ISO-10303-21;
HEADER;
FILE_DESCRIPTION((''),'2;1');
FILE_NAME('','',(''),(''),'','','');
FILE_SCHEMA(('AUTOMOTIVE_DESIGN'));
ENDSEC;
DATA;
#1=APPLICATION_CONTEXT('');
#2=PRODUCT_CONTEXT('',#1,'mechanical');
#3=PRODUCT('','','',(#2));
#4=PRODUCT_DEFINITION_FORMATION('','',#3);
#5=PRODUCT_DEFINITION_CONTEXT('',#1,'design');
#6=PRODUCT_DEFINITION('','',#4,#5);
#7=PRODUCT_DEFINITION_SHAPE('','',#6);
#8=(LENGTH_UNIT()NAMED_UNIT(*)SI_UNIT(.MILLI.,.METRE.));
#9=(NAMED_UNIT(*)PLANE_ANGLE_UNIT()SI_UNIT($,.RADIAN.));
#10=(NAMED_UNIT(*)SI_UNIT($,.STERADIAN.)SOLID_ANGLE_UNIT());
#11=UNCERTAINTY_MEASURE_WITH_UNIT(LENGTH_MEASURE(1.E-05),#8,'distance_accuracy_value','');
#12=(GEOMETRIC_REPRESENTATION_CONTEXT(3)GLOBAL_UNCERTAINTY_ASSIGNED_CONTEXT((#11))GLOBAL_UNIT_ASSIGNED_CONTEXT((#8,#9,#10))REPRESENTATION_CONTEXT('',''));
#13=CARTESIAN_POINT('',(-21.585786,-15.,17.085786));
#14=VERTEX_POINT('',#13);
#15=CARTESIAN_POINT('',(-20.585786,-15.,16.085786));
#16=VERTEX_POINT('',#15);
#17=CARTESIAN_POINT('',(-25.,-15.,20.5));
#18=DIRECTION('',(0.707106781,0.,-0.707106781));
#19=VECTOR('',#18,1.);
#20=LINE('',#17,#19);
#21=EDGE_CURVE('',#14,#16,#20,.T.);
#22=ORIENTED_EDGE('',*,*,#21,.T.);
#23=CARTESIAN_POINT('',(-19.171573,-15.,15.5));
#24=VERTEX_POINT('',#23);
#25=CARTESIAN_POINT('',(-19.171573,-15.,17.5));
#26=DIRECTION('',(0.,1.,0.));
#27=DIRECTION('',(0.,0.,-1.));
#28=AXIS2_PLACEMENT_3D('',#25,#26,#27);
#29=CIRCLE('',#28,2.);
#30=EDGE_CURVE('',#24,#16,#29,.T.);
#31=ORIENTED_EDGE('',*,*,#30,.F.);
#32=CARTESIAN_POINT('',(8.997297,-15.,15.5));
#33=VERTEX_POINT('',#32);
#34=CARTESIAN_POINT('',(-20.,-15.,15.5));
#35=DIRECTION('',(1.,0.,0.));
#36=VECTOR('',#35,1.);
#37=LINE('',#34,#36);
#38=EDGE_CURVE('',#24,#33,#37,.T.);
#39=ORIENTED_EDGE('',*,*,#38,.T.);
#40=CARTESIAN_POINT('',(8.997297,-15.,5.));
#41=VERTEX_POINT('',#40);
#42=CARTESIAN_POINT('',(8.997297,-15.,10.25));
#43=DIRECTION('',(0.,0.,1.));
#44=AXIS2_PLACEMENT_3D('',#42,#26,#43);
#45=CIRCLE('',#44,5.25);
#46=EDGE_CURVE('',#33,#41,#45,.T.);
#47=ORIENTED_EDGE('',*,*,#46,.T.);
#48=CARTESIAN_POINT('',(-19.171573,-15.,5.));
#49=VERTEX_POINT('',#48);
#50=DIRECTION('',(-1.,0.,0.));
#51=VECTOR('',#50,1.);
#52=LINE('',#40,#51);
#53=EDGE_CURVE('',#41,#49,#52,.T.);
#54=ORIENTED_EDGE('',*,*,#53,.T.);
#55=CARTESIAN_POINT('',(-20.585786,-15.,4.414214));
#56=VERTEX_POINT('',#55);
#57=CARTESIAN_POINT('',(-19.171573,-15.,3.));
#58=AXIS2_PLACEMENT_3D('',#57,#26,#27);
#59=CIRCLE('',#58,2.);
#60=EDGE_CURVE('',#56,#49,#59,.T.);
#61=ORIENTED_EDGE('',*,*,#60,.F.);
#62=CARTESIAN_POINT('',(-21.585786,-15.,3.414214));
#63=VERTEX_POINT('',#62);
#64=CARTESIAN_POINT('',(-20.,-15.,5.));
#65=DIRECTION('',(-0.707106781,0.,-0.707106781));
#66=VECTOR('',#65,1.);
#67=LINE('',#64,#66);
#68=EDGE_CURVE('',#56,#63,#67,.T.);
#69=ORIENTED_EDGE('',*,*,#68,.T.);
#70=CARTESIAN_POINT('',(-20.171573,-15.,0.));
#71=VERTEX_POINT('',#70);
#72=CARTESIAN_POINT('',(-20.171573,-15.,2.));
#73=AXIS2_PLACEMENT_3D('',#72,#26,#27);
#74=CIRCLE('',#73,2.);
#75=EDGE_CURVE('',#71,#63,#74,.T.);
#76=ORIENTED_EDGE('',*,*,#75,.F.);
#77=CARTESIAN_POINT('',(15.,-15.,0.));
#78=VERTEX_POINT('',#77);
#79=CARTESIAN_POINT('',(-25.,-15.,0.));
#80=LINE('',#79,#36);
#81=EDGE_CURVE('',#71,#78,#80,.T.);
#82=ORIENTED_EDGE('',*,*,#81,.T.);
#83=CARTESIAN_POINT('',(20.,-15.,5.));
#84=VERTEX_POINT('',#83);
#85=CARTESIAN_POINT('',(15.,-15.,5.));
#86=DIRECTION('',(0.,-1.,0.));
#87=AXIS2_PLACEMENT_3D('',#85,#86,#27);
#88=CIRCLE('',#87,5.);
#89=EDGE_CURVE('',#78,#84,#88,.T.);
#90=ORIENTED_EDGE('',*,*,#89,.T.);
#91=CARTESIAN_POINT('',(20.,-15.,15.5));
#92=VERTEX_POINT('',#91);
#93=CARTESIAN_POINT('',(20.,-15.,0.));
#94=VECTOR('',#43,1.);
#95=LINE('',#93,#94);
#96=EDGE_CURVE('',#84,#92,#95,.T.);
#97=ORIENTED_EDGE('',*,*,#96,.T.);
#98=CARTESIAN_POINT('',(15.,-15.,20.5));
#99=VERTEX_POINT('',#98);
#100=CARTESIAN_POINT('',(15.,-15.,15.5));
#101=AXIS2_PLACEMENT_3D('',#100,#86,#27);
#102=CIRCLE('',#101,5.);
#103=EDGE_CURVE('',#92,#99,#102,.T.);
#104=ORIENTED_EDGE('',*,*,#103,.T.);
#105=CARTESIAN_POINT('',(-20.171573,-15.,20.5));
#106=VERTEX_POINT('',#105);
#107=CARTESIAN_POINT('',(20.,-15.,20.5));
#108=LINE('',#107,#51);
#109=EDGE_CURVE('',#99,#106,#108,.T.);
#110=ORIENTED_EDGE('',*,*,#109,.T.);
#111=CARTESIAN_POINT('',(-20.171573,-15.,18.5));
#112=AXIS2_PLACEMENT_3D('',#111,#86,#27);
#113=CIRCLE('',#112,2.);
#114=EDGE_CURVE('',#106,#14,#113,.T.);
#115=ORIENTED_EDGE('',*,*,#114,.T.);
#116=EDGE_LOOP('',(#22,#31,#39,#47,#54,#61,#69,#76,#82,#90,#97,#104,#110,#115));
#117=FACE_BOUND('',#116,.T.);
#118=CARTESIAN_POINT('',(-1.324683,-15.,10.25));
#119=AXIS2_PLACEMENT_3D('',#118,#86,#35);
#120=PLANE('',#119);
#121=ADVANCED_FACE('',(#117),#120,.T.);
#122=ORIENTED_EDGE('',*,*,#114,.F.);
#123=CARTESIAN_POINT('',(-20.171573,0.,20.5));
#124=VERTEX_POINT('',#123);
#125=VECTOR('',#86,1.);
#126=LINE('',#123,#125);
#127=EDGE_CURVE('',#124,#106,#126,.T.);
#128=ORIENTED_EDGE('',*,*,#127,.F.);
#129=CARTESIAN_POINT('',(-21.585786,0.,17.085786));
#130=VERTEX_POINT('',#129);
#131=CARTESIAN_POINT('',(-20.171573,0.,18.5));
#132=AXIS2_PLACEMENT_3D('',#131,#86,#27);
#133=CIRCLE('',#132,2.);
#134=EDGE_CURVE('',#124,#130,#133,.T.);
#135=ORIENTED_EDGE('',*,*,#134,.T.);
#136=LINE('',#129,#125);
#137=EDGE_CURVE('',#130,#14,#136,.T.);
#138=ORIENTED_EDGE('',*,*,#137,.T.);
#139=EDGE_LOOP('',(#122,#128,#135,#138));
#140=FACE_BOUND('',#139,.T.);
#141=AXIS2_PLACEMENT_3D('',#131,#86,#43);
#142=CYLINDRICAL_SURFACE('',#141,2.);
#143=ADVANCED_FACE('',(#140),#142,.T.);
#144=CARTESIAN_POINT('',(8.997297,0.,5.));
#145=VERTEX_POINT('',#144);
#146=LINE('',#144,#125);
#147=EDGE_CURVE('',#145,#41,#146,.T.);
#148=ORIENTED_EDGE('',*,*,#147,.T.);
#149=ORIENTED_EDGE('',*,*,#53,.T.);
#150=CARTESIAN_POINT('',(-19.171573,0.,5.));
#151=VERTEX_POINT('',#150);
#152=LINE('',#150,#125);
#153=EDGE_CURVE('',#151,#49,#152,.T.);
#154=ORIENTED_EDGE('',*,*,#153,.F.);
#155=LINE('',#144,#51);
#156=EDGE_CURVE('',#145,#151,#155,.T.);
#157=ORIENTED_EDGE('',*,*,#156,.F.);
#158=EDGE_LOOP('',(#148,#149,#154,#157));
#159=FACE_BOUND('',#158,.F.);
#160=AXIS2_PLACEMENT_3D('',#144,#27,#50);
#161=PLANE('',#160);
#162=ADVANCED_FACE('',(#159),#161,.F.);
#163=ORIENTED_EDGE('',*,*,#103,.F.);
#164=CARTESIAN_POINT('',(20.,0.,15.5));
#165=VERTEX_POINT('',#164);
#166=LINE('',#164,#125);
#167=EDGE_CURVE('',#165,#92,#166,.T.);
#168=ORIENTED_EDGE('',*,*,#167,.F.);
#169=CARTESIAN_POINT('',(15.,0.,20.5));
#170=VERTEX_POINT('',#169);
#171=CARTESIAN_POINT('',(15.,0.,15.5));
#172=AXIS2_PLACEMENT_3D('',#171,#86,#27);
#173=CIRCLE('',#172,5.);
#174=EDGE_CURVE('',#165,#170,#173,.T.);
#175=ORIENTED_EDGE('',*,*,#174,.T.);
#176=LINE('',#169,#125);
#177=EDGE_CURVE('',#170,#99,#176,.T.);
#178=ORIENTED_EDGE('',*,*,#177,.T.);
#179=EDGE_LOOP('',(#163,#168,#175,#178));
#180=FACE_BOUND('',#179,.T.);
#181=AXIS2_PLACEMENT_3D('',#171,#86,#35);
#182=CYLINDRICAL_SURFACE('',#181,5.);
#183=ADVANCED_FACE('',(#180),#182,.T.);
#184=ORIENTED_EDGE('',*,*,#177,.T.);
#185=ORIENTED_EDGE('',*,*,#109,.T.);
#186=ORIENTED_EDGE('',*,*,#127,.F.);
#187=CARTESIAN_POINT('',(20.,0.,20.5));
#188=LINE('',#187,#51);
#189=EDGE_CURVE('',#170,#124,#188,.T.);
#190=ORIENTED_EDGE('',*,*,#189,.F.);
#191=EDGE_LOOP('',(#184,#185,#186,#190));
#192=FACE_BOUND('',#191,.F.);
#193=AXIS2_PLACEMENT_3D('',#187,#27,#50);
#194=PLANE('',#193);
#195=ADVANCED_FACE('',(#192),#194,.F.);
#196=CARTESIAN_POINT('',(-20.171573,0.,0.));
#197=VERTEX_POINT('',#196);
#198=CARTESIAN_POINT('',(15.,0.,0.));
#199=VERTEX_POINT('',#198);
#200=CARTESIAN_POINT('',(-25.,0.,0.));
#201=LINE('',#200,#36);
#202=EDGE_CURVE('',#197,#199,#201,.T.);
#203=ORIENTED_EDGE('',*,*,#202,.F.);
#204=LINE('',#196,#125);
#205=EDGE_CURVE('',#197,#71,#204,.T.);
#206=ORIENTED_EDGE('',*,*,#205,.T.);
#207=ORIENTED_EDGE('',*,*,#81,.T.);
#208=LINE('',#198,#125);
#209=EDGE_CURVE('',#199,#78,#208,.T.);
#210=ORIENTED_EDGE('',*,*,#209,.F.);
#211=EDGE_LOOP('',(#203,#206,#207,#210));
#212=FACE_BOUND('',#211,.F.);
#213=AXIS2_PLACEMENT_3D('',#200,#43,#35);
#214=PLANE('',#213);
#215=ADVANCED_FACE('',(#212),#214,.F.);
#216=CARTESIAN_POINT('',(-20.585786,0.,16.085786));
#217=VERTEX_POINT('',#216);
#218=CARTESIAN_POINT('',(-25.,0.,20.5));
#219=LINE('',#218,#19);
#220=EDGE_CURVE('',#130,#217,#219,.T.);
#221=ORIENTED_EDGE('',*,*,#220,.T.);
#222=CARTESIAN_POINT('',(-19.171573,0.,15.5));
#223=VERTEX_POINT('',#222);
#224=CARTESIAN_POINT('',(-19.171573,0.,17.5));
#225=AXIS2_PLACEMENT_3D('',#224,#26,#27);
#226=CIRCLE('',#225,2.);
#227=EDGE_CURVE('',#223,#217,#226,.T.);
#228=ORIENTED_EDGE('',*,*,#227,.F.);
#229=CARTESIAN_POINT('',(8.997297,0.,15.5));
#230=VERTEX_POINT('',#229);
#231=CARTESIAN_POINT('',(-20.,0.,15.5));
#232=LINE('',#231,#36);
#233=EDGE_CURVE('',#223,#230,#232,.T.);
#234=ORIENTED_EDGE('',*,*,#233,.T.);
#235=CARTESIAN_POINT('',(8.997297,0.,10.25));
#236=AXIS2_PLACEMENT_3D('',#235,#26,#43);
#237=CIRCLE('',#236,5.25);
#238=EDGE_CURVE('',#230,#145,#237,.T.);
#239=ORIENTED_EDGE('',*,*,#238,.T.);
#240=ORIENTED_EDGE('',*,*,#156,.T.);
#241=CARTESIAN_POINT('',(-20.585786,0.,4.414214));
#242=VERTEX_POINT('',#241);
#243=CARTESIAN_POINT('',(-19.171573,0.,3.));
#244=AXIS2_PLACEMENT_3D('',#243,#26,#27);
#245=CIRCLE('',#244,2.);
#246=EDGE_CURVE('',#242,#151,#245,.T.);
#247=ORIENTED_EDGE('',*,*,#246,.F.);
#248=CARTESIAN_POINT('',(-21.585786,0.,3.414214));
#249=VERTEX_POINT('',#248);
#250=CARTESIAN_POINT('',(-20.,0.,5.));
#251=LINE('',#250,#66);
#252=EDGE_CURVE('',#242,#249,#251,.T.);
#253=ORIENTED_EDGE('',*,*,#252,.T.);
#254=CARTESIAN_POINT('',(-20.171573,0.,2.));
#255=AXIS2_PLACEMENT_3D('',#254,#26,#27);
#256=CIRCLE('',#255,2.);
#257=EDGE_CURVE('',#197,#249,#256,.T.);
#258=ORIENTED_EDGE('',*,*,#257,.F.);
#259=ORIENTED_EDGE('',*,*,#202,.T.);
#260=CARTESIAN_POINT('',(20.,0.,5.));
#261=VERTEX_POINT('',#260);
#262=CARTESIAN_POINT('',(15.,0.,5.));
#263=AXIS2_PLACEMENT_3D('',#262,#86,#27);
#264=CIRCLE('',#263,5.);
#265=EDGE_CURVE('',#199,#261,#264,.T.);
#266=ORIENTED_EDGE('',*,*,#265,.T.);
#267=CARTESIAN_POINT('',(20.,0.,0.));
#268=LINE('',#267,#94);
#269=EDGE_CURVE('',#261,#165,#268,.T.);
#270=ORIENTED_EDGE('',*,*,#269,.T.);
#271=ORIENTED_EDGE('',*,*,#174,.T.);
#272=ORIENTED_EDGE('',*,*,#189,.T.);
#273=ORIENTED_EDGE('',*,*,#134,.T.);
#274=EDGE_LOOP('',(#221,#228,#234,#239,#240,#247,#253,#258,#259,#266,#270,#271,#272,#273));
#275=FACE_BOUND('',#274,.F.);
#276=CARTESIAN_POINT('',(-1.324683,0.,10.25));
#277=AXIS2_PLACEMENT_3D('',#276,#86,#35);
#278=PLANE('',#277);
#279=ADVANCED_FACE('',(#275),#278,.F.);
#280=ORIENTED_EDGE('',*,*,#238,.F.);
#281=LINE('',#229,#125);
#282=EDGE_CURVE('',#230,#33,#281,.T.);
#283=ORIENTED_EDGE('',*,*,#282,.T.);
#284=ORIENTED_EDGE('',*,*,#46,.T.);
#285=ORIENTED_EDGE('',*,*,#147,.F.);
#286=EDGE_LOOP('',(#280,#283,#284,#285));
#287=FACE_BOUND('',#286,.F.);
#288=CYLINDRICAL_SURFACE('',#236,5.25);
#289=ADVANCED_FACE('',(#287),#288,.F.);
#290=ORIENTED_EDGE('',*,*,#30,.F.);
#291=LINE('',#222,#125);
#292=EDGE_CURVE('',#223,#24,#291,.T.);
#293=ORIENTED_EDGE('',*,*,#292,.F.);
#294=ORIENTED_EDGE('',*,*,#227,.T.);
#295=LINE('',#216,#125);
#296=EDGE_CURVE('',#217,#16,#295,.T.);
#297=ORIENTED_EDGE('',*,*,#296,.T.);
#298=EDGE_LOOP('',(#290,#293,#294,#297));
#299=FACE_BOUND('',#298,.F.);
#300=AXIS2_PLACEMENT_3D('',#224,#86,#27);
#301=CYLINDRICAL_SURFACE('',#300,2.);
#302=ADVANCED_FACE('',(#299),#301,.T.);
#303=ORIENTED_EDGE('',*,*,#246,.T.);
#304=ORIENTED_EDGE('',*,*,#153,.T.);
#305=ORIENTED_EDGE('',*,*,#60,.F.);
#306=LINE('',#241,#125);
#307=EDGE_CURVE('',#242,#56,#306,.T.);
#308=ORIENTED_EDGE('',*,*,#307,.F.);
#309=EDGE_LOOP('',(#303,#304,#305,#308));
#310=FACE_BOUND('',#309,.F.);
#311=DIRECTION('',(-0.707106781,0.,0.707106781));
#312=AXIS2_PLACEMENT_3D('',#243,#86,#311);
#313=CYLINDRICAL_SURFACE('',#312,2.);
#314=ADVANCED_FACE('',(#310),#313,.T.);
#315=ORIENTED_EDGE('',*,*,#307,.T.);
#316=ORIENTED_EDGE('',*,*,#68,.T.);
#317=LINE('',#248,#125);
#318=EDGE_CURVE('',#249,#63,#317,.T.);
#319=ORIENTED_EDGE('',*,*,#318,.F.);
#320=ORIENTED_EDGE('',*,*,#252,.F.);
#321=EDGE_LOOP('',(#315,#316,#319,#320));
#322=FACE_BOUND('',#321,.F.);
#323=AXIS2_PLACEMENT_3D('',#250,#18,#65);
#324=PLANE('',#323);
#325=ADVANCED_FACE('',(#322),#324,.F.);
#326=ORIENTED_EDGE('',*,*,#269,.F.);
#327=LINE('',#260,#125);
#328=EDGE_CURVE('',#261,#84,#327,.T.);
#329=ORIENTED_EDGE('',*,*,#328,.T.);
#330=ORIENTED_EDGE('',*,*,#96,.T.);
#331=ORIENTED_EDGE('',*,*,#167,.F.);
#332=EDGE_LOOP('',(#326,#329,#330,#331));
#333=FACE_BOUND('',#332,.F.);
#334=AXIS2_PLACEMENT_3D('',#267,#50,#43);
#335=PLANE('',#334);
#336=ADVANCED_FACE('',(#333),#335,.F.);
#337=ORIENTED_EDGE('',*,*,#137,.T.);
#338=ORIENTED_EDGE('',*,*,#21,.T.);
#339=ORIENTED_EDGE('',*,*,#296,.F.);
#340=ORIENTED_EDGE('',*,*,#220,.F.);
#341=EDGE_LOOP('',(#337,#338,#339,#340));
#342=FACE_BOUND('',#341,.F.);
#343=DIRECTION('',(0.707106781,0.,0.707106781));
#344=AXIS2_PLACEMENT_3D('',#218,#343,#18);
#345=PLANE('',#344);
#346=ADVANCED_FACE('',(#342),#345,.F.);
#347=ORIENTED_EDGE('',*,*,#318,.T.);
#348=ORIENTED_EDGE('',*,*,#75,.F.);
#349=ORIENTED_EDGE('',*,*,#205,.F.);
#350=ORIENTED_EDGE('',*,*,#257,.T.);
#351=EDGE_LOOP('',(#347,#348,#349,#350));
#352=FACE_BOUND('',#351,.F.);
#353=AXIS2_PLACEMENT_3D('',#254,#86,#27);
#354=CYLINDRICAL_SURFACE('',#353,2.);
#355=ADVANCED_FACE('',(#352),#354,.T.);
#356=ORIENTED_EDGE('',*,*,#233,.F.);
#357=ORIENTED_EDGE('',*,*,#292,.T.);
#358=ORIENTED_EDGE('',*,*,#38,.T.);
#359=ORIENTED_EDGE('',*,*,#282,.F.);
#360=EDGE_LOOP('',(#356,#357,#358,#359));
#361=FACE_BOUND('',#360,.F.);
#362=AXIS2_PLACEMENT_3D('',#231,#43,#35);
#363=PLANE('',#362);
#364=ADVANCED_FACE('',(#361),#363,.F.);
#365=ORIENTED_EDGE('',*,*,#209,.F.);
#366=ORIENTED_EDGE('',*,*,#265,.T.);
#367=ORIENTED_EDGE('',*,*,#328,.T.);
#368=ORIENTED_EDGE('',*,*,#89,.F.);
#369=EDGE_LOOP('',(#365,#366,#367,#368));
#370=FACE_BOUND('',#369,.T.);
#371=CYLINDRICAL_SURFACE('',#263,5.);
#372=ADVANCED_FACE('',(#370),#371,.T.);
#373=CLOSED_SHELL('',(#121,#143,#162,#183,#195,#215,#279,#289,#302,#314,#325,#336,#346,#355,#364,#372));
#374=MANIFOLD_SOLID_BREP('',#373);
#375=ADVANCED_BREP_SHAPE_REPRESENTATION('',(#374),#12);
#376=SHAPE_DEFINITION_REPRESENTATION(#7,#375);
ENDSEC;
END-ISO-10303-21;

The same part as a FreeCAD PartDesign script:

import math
import FreeCAD as App
import Part
import Sketcher
from FreeCAD import Vector


def edges_at(feature, points):
    """Names of the edges that pass closest to the given points."""
    edges = feature.Shape.Edges
    near = lambda p: min(range(len(edges)), key=lambda i: edges[i].distToShape(Part.Vertex(*p))[0])
    return sorted({f"Edge{near(p) + 1}" for p in points})

doc = App.newDocument("Part")
body = doc.addObject("PartDesign::Body", "Body")

# Sketch on XZ plane
sketch1 = body.newObject("Sketcher::SketchObject", "Sketch")
sketch1.AttachmentSupport = (doc.getObject("XZ_Plane"), [""])
sketch1.MapMode = "FlatFace"
sketch1.addGeometry(Part.LineSegment(Vector(-20, 5, 0), Vector(-25, 0, 0)), False)
sketch1.addGeometry(Part.LineSegment(Vector(-25, 0, 0), Vector(20, 0, 0)), False)
sketch1.addGeometry(Part.LineSegment(Vector(20, 0, 0), Vector(20, 20, 0)), False)
sketch1.addGeometry(Part.LineSegment(Vector(20, 20, 0), Vector(-25, 20, 0)), False)
sketch1.addGeometry(Part.LineSegment(Vector(-25, 20, 0), Vector(-20, 16, 0)), False)
sketch1.addGeometry(Part.LineSegment(Vector(-20, 16, 0), Vector(9, 16, 0)), False)
sketch1.addGeometry(Part.ArcOfCircle(Part.Circle(Vector(9, 10, 0), Vector(0, 0, 1), 5), math.radians(-90), math.radians(90)), False)
sketch1.addGeometry(Part.LineSegment(Vector(9, 5, 0), Vector(-20, 5, 0)), False)
sketch1.addConstraint(Sketcher.Constraint("Coincident", 0, 2, 1, 1))
sketch1.addConstraint(Sketcher.Constraint("Coincident", 1, 2, 2, 1))
sketch1.addConstraint(Sketcher.Constraint("Coincident", 2, 2, 3, 1))
sketch1.addConstraint(Sketcher.Constraint("Coincident", 3, 2, 4, 1))
sketch1.addConstraint(Sketcher.Constraint("Coincident", 4, 2, 5, 1))
sketch1.addConstraint(Sketcher.Constraint("Tangent", 5, 2, 6, 2))
sketch1.addConstraint(Sketcher.Constraint("Tangent", 6, 1, 7, 1))
sketch1.addConstraint(Sketcher.Constraint("Coincident", 7, 2, 0, 1))
sketch1.addConstraint(Sketcher.Constraint("Horizontal", 1))
sketch1.addConstraint(Sketcher.Constraint("Vertical", 2))
sketch1.addConstraint(Sketcher.Constraint("Horizontal", 3))
sketch1.addConstraint(Sketcher.Constraint("Horizontal", 5))
sketch1.addConstraint(Sketcher.Constraint("Horizontal", 7))
sketch1.addConstraint(Sketcher.Constraint("PointOnObject", 0, 2, -1))
sketch1.addConstraint(Sketcher.Constraint("Perpendicular", 0, 4))
sketch1.addConstraint(Sketcher.Constraint("Vertical", 0, 2, 3, 2))
sketch1.addConstraint(Sketcher.Constraint("Vertical", 4, 2, 7, 2))
sketch1.addConstraint(Sketcher.Constraint("Equal", 0, 4))
sketch1.addConstraint(Sketcher.Constraint("DistanceX", 1, 1, 1, 2, 45.0))
sketch1.addConstraint(Sketcher.Constraint("Radius", 6, 5.25))
sketch1.addConstraint(Sketcher.Constraint("DistanceY", 2, 1, 2, 2, 20.5))
sketch1.addConstraint(Sketcher.Constraint("DistanceX", 0, 2, -1, 1, 25.0))
sketch1.addConstraint(Sketcher.Constraint("DistanceX", 5, 1, 5, 2, 28.997297))
pad1 = body.newObject("PartDesign::Pad", "Pad")
pad1.Profile = sketch1
pad1.Length = 15
doc.recompute()

fillet = body.newObject("PartDesign::Fillet", "Fillet")
fillet.Base = (pad1, edges_at(pad1, [(20, -7.5, 20.5), (20, -7.5, 0)]))
fillet.Radius = 5
doc.recompute()

fillet2 = body.newObject("PartDesign::Fillet", "Fillet001")
fillet2.Base = (fillet, edges_at(fillet, [
    (-25, -7.5, 20.5),
    (-20, -7.5, 5),
    (-25, -7.5, 0),
    (-20, -7.5, 15.5),
]))
fillet2.Radius = 2

doc.recompute()
